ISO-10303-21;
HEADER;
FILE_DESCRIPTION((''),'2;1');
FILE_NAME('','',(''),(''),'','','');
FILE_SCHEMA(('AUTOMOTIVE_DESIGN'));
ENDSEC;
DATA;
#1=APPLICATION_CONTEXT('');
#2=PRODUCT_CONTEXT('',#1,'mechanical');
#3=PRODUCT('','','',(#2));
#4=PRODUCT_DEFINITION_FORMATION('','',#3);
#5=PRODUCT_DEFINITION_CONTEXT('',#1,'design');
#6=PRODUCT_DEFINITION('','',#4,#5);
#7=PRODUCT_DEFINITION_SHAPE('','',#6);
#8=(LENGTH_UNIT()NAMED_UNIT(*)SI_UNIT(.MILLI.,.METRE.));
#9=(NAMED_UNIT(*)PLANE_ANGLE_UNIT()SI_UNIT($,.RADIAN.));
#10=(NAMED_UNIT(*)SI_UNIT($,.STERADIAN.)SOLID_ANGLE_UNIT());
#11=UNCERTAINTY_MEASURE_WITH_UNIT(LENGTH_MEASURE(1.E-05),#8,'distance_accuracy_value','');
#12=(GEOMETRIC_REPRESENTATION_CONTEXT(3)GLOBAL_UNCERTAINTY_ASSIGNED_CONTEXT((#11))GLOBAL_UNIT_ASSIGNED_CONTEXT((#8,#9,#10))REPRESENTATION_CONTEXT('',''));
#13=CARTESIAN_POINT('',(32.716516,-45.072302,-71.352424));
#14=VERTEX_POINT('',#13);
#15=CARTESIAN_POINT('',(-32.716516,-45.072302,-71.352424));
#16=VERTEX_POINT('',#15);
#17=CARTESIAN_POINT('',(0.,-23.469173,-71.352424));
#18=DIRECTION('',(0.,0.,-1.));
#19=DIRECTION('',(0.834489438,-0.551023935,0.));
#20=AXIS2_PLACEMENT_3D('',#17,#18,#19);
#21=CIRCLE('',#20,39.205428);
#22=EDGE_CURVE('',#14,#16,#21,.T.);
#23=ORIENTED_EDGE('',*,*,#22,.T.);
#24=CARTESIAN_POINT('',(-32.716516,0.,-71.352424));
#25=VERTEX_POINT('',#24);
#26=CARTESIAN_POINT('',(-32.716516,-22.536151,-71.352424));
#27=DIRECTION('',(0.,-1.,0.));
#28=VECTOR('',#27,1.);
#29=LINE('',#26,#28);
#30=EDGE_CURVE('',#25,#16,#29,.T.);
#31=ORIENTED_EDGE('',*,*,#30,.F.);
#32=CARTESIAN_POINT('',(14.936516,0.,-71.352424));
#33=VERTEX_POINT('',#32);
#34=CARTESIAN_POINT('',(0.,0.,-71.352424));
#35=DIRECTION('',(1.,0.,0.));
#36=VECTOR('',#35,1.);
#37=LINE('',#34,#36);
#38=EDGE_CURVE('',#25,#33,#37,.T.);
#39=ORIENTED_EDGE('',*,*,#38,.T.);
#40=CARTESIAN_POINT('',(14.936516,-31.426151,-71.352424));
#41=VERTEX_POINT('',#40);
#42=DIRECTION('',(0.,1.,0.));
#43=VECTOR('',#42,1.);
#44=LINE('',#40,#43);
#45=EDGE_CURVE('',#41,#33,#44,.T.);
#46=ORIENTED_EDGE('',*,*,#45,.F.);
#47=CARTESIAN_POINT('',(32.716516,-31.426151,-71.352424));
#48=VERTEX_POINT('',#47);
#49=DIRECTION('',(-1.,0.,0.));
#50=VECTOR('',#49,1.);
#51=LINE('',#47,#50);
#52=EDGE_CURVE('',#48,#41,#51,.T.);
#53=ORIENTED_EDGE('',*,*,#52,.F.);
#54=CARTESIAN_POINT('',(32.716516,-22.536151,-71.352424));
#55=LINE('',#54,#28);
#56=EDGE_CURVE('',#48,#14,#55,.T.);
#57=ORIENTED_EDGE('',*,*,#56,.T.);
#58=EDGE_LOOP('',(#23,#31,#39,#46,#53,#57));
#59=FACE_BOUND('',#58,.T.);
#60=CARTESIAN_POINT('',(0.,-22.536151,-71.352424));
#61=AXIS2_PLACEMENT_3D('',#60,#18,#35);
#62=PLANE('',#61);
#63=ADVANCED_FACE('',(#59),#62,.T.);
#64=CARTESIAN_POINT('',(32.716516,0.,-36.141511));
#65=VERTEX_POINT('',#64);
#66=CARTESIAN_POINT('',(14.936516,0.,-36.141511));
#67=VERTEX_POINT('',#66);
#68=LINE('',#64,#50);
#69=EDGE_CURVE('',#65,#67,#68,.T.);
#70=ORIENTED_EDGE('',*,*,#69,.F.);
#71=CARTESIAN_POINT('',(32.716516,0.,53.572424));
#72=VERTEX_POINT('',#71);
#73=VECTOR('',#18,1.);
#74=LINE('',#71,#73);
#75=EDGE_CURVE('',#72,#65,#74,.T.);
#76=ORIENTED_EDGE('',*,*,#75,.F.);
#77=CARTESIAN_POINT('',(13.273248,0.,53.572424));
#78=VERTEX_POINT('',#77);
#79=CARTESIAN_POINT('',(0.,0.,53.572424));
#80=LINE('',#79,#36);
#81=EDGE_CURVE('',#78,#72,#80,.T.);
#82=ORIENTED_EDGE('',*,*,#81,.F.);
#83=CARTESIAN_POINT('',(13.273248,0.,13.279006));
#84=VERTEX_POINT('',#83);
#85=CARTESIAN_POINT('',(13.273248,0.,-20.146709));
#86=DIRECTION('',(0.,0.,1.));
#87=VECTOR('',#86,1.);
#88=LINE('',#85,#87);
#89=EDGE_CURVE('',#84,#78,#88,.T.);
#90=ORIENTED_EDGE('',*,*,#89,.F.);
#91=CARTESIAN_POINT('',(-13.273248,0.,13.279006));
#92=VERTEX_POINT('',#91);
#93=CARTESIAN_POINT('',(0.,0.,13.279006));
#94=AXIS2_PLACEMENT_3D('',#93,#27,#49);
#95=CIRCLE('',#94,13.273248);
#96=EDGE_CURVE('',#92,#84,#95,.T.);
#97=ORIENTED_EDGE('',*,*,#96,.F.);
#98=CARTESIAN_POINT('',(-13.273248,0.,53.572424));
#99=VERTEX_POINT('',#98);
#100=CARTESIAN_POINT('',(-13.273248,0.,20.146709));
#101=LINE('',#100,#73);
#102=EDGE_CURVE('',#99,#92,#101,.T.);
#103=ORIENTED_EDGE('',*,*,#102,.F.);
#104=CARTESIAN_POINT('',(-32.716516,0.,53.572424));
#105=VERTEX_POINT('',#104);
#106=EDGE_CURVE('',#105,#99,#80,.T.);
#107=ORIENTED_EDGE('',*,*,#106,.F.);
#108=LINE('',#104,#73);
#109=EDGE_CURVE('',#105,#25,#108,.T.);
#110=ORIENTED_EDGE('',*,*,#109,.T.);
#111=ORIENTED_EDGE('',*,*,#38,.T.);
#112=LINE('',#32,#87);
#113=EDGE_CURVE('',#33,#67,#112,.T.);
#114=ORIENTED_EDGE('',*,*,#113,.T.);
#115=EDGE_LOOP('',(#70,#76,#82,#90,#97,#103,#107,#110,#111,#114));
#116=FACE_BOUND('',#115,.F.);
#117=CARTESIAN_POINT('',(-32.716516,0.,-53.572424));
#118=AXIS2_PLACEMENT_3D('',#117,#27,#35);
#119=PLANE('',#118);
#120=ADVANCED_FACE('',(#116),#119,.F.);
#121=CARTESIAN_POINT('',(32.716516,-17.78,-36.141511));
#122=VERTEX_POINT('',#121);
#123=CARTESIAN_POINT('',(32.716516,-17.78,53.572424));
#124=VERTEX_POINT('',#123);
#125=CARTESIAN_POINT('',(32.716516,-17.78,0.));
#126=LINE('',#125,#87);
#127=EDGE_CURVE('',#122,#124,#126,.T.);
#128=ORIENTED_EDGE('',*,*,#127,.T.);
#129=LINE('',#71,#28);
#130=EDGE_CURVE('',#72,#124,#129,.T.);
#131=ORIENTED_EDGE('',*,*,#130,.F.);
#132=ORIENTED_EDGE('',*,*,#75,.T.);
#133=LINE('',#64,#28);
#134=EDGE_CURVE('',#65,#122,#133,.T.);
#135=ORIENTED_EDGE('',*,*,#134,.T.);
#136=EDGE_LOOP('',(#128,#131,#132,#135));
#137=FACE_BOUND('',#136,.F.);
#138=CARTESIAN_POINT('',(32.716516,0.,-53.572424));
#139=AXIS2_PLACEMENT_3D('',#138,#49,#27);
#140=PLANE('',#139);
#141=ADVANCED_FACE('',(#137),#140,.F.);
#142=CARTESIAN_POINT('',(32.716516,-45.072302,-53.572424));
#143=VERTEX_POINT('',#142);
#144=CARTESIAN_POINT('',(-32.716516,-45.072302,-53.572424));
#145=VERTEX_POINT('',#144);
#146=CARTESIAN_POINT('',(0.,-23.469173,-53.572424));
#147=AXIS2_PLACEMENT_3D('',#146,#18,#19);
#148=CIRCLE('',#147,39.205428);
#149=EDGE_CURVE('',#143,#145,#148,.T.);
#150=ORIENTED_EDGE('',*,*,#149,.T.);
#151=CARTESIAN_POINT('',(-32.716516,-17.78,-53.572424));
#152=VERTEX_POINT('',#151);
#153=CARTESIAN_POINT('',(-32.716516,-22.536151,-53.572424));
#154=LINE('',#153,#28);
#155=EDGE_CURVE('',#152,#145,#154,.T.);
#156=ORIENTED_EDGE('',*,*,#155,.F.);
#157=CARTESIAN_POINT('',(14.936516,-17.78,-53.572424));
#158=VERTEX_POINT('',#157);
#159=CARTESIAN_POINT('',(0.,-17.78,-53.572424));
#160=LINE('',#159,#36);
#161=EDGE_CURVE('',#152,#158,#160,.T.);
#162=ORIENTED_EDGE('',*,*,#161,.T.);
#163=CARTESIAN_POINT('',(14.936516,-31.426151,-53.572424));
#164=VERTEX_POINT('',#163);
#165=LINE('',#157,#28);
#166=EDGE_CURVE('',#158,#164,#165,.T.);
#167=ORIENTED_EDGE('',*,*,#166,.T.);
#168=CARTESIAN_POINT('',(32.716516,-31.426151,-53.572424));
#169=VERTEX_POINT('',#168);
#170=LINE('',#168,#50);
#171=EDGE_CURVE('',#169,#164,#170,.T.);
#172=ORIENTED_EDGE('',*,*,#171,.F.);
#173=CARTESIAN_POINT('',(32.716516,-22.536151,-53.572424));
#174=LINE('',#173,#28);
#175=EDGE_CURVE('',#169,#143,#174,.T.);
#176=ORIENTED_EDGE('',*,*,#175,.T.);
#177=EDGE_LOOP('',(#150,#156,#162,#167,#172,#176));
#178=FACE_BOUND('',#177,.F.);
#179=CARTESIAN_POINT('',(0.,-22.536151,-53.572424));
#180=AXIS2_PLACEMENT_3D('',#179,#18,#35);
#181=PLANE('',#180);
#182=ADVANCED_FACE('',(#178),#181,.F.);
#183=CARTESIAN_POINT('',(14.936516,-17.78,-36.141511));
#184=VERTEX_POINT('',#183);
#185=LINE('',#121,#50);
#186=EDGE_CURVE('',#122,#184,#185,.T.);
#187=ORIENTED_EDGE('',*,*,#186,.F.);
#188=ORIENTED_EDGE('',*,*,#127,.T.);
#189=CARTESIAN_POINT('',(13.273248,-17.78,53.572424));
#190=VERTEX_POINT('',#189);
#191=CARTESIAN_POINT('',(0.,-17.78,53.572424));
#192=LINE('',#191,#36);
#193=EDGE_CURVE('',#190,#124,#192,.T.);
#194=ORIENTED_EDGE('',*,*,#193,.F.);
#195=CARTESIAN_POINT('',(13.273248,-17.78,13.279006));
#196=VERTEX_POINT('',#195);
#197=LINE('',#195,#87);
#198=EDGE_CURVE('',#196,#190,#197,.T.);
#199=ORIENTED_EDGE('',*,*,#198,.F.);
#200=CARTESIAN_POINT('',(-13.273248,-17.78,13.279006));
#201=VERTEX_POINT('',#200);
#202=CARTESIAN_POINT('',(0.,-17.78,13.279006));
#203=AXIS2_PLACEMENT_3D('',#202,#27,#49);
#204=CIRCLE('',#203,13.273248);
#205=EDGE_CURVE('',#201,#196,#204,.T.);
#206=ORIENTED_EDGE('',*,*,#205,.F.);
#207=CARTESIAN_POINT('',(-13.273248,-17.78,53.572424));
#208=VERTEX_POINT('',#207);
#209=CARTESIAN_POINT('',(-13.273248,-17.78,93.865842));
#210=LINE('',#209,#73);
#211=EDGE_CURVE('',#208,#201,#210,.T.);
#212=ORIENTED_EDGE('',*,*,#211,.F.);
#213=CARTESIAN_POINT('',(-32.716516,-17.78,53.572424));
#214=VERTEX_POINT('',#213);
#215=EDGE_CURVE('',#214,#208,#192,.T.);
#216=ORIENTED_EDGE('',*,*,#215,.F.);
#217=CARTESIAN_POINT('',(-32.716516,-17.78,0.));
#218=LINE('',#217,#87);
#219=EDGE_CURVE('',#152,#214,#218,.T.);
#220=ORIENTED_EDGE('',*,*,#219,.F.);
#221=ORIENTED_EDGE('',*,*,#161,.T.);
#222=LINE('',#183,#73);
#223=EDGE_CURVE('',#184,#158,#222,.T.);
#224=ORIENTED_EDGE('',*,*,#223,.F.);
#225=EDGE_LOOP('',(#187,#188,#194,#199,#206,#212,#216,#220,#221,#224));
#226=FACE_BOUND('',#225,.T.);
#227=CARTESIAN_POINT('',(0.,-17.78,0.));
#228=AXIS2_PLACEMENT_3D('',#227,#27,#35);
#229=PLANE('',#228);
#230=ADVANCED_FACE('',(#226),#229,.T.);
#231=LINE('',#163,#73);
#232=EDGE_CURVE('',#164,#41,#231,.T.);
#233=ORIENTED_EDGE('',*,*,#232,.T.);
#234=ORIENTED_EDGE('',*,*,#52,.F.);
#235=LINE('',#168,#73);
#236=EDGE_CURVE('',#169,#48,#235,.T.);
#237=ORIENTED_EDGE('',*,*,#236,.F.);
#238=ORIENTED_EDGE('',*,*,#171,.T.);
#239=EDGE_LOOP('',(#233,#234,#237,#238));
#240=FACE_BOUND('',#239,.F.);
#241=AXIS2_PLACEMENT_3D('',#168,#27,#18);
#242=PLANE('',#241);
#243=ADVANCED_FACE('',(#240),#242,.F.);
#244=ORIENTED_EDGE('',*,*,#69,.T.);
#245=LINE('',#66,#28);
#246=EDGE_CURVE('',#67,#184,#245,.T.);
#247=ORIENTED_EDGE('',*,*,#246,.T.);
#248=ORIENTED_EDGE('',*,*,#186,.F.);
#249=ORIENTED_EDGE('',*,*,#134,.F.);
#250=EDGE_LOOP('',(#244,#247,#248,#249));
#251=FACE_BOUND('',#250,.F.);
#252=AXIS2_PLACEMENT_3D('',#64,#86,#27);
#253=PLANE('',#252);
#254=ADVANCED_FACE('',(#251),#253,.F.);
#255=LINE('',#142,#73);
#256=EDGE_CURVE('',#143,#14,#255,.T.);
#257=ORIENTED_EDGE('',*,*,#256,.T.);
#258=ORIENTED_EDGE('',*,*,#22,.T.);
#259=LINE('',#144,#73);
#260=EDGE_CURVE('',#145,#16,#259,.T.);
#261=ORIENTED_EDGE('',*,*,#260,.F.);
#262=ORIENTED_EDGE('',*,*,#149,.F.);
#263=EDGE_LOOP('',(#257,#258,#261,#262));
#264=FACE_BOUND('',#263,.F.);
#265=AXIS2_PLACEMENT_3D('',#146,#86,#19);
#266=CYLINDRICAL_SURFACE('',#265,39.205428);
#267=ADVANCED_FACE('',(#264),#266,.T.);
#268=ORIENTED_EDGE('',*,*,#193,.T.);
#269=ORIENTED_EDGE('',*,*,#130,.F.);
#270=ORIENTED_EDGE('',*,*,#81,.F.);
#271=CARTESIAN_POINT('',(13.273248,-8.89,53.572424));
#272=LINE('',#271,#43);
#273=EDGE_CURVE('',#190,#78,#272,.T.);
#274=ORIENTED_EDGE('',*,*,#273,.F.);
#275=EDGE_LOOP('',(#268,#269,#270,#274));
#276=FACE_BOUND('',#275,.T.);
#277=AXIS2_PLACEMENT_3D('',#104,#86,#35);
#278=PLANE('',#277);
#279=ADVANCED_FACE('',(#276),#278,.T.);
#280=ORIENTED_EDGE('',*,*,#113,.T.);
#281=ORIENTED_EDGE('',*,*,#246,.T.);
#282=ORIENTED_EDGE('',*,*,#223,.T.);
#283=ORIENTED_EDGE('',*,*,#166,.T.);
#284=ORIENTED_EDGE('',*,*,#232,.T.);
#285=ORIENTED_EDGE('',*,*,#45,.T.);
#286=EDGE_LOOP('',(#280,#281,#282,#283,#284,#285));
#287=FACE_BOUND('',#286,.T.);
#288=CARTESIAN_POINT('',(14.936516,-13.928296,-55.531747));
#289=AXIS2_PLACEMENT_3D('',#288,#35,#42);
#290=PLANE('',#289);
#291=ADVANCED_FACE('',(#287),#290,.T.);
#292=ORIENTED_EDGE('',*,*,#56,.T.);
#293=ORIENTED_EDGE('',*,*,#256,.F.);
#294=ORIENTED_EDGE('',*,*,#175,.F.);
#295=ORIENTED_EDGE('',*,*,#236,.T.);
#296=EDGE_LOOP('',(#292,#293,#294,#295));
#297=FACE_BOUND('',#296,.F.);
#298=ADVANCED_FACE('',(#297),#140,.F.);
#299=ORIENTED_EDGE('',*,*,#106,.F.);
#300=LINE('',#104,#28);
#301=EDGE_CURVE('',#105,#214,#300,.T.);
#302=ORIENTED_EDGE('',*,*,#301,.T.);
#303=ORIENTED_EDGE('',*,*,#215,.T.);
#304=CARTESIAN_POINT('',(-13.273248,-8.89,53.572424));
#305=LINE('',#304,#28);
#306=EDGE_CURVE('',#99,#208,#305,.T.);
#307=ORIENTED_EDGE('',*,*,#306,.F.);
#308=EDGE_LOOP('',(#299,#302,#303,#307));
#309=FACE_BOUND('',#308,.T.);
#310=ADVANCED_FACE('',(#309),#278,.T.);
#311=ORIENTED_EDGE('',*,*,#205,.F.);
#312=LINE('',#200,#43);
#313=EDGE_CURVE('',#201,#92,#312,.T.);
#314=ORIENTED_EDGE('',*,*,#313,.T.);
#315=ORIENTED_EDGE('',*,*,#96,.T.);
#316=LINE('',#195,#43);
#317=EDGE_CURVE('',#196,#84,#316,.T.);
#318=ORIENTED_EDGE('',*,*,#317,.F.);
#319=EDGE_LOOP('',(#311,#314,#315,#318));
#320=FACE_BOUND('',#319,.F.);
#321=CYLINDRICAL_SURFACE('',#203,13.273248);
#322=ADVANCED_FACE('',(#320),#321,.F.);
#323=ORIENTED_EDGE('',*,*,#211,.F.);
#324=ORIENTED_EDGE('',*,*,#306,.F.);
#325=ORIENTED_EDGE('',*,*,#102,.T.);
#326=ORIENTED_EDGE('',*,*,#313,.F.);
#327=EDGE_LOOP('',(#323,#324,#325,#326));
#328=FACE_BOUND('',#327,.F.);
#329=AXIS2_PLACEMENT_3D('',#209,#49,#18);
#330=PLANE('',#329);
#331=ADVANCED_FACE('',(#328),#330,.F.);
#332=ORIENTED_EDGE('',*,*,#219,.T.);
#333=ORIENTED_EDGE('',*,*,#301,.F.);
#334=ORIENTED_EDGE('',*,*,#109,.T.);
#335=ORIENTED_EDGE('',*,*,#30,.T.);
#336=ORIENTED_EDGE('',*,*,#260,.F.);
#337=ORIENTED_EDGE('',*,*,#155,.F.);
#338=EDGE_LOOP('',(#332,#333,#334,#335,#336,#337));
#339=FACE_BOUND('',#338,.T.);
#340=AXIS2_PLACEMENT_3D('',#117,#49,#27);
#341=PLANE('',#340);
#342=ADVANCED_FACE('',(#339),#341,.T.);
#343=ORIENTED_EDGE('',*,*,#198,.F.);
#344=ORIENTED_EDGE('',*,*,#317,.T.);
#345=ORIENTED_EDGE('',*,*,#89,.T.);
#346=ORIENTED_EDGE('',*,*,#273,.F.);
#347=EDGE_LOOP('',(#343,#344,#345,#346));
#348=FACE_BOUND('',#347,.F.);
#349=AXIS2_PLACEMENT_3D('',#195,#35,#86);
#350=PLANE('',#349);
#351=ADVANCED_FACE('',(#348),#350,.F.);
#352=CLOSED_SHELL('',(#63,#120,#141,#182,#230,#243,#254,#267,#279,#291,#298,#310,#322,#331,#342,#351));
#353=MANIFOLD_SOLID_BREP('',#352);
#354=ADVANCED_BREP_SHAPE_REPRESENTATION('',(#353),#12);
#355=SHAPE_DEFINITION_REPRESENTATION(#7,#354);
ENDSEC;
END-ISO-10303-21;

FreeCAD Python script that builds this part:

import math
import FreeCAD as App
import Part
import Sketcher
Q = App.Units.Quantity

doc = App.newDocument("Part")
body = doc.addObject("PartDesign::Body", "Body")

# Sketch on XZ plane
sketch1 = body.newObject("Sketcher::SketchObject", "Sketch")
sketch1.AttachmentSupport = (doc.getObject("XZ_Plane"), [""])
sketch1.MapMode = "FlatFace"
sketch1.addGeometry([
    Part.LineSegment(App.Vector(-33, 54, 0), App.Vector(-33, -54, 0)),
    Part.LineSegment(App.Vector(-33, -54, 0), App.Vector(33, -54, 0)),
    Part.LineSegment(App.Vector(33, -54, 0), App.Vector(33, 54, 0)),
    Part.LineSegment(App.Vector(33, 54, 0), App.Vector(-33, 54, 0)),
], False)
sketch1.addConstraint([
    Sketcher.Constraint("Coincident", 0, 2, 1, 1),
    Sketcher.Constraint("Coincident", 1, 2, 2, 1),
    Sketcher.Constraint("Coincident", 2, 2, 3, 1),
    Sketcher.Constraint("Coincident", 3, 2, 0, 1),
    Sketcher.Constraint("Vertical", 0),
    Sketcher.Constraint("Horizontal", 1),
    Sketcher.Constraint("Vertical", 2),
    Sketcher.Constraint("Horizontal", 3),
    Sketcher.Constraint("Symmetric", 0, 2, 2, 2, -1, 1),
    Sketcher.Constraint("DistanceX", 1, 1, 1, 2, 65.433032),
    Sketcher.Constraint("DistanceY", 0, 2, 0, 1, 107.144848),
])
pad1 = body.newObject("PartDesign::Pad", "Pad")
pad1.Profile = sketch1
pad1.Length = Q("0.7 in")

# Sketch on XY plane
sketch2 = body.newObject("Sketcher::SketchObject", "Sketch001")
sketch2.AttachmentSupport = (doc.getObject("XY_Plane"), [""])
sketch2.MapMode = "FlatFace"
sketch2.AttachmentOffset = App.Placement(App.Vector(0, 0, -53.572424), App.Rotation())
sketch2.addGeometry([
    Part.LineSegment(App.Vector(-33, -45, 0), App.Vector(-33, 0, 0)),
    Part.LineSegment(App.Vector(-33, 0, 0), App.Vector(33, 0, 0)),
    Part.LineSegment(App.Vector(33, 0, 0), App.Vector(33, -45, 0)),
    Part.ArcOfCircle(Part.Circle(App.Vector(0, -23, 0), App.Vector(0, 0, 1), 39), math.radians(-147), math.radians(-33)),
], False)
sketch2.addConstraint([
    Sketcher.Constraint("Coincident", 0, 2, 1, 1),
    Sketcher.Constraint("Coincident", 1, 2, 2, 1),
    Sketcher.Constraint("Coincident", 2, 2, 3, 2),
    Sketcher.Constraint("Coincident", 3, 1, 0, 1),
    Sketcher.Constraint("Vertical", 0),
    Sketcher.Constraint("Horizontal", 1),
    Sketcher.Constraint("Vertical", 2),
    Sketcher.Constraint("Symmetric", 0, 2, 1, 2, -1, 1),
    Sketcher.Constraint("PointOnObject", 3, 3, -2),
    Sketcher.Constraint("DistanceY", 0, 1, 0, 2, Q("1.7745001 in")),
    Sketcher.Constraint("Radius", 3, 39.205428),
    Sketcher.Constraint("DistanceX", 1, 1, 1, 2, 65.433032),
])
pad2 = body.newObject("PartDesign::Pad", "Pad001")
pad2.Profile = sketch2
pad2.Length = Q("0.7 in")
pad2.Reversed = True

# Sketch on YZ plane
sketch3 = body.newObject("Sketcher::SketchObject", "Sketch002")
sketch3.AttachmentSupport = (doc.getObject("YZ_Plane"), [""])
sketch3.MapMode = "FlatFace"
sketch3.AttachmentOffset = App.Placement(App.Vector(0, 0, 32.716516), App.Rotation())
sketch3.addGeometry([
    Part.LineSegment(App.Vector(0, -71, 0), App.Vector(0, -36, 0)),  # 0
    Part.LineSegment(App.Vector(0, -36, 0), App.Vector(-18, -36, 0)),  # 1
    Part.LineSegment(App.Vector(-18, -36, 0), App.Vector(-18, -54, 0)),  # 2
    Part.LineSegment(App.Vector(-18, -54, 0), App.Vector(-31, -54, 0)),  # 3
    Part.LineSegment(App.Vector(-31, -54, 0), App.Vector(-31, -71, 0)),  # 4
    Part.LineSegment(App.Vector(-31, -71, 0), App.Vector(0, -71, 0)),  # 5
], False)
sketch3.addConstraint([
    Sketcher.Constraint("Coincident", 0, 2, 1, 1),
    Sketcher.Constraint("Coincident", 1, 2, 2, 1),
    Sketcher.Constraint("Coincident", 2, 2, 3, 1),
    Sketcher.Constraint("Coincident", 3, 2, 4, 1),
    Sketcher.Constraint("Coincident", 4, 2, 5, 1),
    Sketcher.Constraint("Coincident", 5, 2, 0, 1),
    Sketcher.Constraint("Vertical", 0),
    Sketcher.Constraint("Horizontal", 1),
    Sketcher.Constraint("Vertical", 2),
    Sketcher.Constraint("Horizontal", 3),
    Sketcher.Constraint("Vertical", 4),
    Sketcher.Constraint("Horizontal", 5),
    Sketcher.Constraint("PointOnObject", 0, 2, -2),
    Sketcher.Constraint("Equal", 1, 4),
    Sketcher.Constraint("DistanceX", 1, 2, 1, 1, Q("0.7 in")),
    Sketcher.Constraint("DistanceX", 3, 2, 3, 1, 13.646151),
    Sketcher.Constraint("DistanceY", 0, 1, 0, 2, 35.210913),
    Sketcher.Constraint("DistanceY", 0, 2, -1, 1, 36.141511),
])
pocket1 = body.newObject("PartDesign::Pocket", "Pocket")
pocket1.Profile = sketch3
pocket1.Length = Q("0.7 in")

# Sketch on XZ plane
sketch4 = body.newObject("Sketcher::SketchObject", "Sketch003")
sketch4.AttachmentSupport = (doc.getObject("XZ_Plane"), [""])
sketch4.MapMode = "FlatFace"
sketch4.AttachmentOffset = App.Placement(App.Vector(0, 0, 0.7 * 25.4), App.Rotation())
sketch4.addGeometry([
    Part.LineSegment(App.Vector(13, 13, 0), App.Vector(13, 94, 0)),
    Part.LineSegment(App.Vector(13, 94, 0), App.Vector(-13, 94, 0)),
    Part.LineSegment(App.Vector(-13, 94, 0), App.Vector(-13, 13, 0)),
    Part.ArcOfCircle(Part.Circle(App.Vector(0, 13, 0), App.Vector(0, 0, 1), 13), math.radians(180), math.radians(360)),
], False)
sketch4.addConstraint([
    Sketcher.Constraint("Coincident", 0, 2, 1, 1),
    Sketcher.Constraint("Coincident", 1, 2, 2, 1),
    Sketcher.Constraint("Tangent", 2, 2, 3, 1),
    Sketcher.Constraint("Tangent", 3, 2, 0, 1),
    Sketcher.Constraint("Vertical", 0),
    Sketcher.Constraint("Horizontal", 1),
    Sketcher.Constraint("Vertical", 2),
    Sketcher.Constraint("PointOnObject", 3, 3, -2),
    Sketcher.Constraint("Radius", 3, 13.273248),
    Sketcher.Constraint("DistanceY", 0, 1, 0, 2, 80.586836),
    Sketcher.Constraint("DistanceY", -1, 1, 0, 2, 93.865842),
])
pocket2 = body.newObject("PartDesign::Pocket", "Pocket001")
pocket2.Profile = sketch4
pocket2.Length = Q("1 in")

doc.recompute()
